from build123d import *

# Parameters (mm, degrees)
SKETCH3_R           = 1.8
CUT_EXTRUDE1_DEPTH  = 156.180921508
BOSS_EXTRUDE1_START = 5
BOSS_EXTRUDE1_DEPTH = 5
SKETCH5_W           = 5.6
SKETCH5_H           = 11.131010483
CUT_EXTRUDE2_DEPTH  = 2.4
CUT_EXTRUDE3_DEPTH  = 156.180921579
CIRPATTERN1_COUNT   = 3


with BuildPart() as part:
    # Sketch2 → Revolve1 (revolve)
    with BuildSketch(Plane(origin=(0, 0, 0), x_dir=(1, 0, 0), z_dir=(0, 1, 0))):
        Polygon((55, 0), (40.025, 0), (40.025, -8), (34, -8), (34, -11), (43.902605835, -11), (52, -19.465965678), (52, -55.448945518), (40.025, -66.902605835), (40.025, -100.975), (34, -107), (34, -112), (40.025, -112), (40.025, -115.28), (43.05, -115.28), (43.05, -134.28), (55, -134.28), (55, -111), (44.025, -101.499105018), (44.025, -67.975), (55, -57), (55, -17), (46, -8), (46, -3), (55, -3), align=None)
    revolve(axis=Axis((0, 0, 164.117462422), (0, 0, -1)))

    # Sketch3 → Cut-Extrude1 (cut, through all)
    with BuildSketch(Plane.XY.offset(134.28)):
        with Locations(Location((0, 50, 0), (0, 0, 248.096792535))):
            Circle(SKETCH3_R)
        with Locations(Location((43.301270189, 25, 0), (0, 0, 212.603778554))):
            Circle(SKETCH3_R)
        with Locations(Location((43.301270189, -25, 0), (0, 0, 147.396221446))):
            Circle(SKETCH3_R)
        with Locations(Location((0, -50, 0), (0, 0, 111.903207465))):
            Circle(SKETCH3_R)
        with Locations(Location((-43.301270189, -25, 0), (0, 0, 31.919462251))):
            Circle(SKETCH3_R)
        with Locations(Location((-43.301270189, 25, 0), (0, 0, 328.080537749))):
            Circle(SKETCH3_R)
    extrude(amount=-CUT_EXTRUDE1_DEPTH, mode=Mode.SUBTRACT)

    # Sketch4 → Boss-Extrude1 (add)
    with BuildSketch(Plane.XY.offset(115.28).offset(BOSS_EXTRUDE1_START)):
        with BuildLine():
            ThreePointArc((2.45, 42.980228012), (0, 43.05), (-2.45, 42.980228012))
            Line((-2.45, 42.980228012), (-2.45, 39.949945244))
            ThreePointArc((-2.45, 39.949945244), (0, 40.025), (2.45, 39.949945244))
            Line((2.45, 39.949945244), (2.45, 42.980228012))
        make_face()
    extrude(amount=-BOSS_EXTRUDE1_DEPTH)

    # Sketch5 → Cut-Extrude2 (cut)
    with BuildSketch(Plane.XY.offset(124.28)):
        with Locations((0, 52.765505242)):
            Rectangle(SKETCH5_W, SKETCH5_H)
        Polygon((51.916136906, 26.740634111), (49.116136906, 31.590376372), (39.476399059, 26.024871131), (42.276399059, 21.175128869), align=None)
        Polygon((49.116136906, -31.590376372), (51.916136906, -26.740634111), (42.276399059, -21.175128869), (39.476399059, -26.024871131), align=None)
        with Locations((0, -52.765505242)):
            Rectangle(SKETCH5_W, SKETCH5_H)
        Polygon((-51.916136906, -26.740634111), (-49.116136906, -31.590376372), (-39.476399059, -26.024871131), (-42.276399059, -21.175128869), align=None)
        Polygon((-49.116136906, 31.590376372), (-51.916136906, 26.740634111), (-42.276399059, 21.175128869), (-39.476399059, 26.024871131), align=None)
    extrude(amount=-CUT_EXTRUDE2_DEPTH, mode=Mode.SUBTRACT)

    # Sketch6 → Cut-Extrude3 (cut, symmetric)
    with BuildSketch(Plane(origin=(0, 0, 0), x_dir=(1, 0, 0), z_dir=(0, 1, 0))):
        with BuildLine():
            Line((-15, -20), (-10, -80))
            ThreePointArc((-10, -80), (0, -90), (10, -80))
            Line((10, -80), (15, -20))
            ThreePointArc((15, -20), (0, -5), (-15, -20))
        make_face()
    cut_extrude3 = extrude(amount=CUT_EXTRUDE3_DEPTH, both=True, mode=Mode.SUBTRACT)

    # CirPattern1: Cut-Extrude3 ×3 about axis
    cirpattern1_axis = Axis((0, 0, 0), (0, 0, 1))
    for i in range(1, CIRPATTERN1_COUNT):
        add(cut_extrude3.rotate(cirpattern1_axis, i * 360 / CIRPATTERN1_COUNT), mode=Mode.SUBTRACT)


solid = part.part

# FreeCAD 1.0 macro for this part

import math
import FreeCAD as App
import Part
import Sketcher
from FreeCAD import Vector
Q = App.Units.Quantity


def add_polygon(sketch, points):
    """Adds a closed chain of lines whose ends are joined by coincident constraints."""
    first, n = sketch.GeometryCount, len(points)
    for a, b in zip(points, points[1:] + points[:1]):
        sketch.addGeometry(Part.LineSegment(App.Vector(*a, 0), App.Vector(*b, 0)), False)
    for i in range(n):
        sketch.addConstraint(Sketcher.Constraint("Coincident", first + i, 2, first + (i + 1) % n, 1))

doc = App.newDocument("Part")
body = doc.addObject("PartDesign::Body", "Body")

sketch1 = body.newObject("Sketcher::SketchObject", "Sketch")
sketch1.AttachmentSupport = (doc.getObject("XZ_Plane"), [""])
sketch1.MapMode = "FlatFace"
add_polygon(sketch1, [(55, 0), (40.025, 0), (40.025, 8), (34, 8), (34, 11), (43.902606, 11), (52, 19.465966), (52, 55.448946), (40.025, 66.902606), (40.025, 100.975), (34, 107), (34, 112), (40.025, 112), (40.025, 115.28), (43.05, 115.28), (43.05, 134.28), (55, 134.28), (55, 111), (44.025, 101.499105), (44.025, 67.975), (55, 57), (55, 17), (46, 8), (46, 3), (55, 3)])
sketch1.addConstraint([
    Sketcher.Constraint("Horizontal", 0),
    Sketcher.Constraint("Vertical", 1),
    Sketcher.Constraint("Horizontal", 2),
    Sketcher.Constraint("Vertical", 3),
    Sketcher.Constraint("Horizontal", 4),
    Sketcher.Constraint("Vertical", 6),
    Sketcher.Constraint("Vertical", 8),
    Sketcher.Constraint("Vertical", 10),
    Sketcher.Constraint("Horizontal", 11),
    Sketcher.Constraint("Vertical", 12),
    Sketcher.Constraint("Horizontal", 13),
    Sketcher.Constraint("Vertical", 14),
    Sketcher.Constraint("Horizontal", 15),
    Sketcher.Constraint("Vertical", 16),
    Sketcher.Constraint("Vertical", 18),
    Sketcher.Constraint("Vertical", 20),
    Sketcher.Constraint("Vertical", 22),
    Sketcher.Constraint("Horizontal", 23),
    Sketcher.Constraint("Vertical", 24),
    Sketcher.Constraint("PointOnObject", 0, 2, -1),
    Sketcher.Constraint("Perpendicular", 5, 7),
    Sketcher.Constraint("Parallel", 9, 19),
    Sketcher.Constraint("Perpendicular", 19, 21),
    Sketcher.Constraint("Horizontal", 2, 2, 21, 2),
    Sketcher.Constraint("Vertical", 1, 2, 7, 2),
    Sketcher.Constraint("Vertical", 3, 2, 9, 2),
    Sketcher.Constraint("Vertical", 8, 2, 11, 2),
    Sketcher.Constraint("Vertical", 16, 2, 19, 2),
    Sketcher.Constraint("Vertical", 20, 2, 23, 2),
    Sketcher.Constraint("Equal", 10, 22),
    Sketcher.Constraint("Equal", 3, 24),
    Sketcher.Constraint("DistanceX", 23, 1, 23, 2, 9.0),
    Sketcher.Constraint("DistanceY", 1, 1, 1, 2, 8.0),
    Sketcher.Constraint("DistanceY", 3, 1, 3, 2, 3.0),
    Sketcher.Constraint("DistanceY", 14, 1, 14, 2, 19.0),
    Sketcher.Constraint("DistanceY", 20, 2, 20, 1, 40.0),
    Sketcher.Constraint("Angle", 9, Q("135 deg")),
    Sketcher.Constraint("DistanceX", -1, 1, 2, 2, 34.0),
    Sketcher.Constraint("DistanceX", -1, 1, 5, 2, 52.0),
    Sketcher.Constraint("DistanceY", -1, 1, 9, 2, 107.0),
    Sketcher.Constraint("DistanceX", -1, 1, 15, 2, 55.0),
    Sketcher.Constraint("DistanceY", -1, 1, 16, 2, 111.0),
    Sketcher.Constraint("DistanceX", 8, 2, 17, 2, 4.0),
    Sketcher.Constraint("DistanceX", 15, 1, 15, 2, 11.95),
    Sketcher.Constraint("DistanceY", 12, 1, 12, 2, 3.28),
    Sketcher.Constraint("DistanceX", 0, 2, 0, 1, 14.975),
    Sketcher.Constraint("DistanceY", 6, 1, 6, 2, 35.98298),
    Sketcher.Constraint("DistanceX", 4, 1, 4, 2, 9.902606),
    Sketcher.Constraint("DistanceY", 8, 1, 8, 2, 34.072394),
    Sketcher.Constraint("DistanceY", 18, 2, 18, 1, 33.524105),
])
revolution = body.newObject("PartDesign::Revolution", "Revolution")
revolution.Profile = sketch1
revolution.ReferenceAxis = (sketch1, ["V_Axis"])
revolution.Angle = 360

sketch2 = body.newObject("Sketcher::SketchObject", "Sketch001")
sketch2.AttachmentSupport = (doc.getObject("XY_Plane"), [""])
sketch2.MapMode = "FlatFace"
sketch2.AttachmentOffset = App.Placement(Vector(0, 0, 134.28), App.Rotation())
sketch2.addGeometry([
    Part.Circle(Vector(0, 50, 0), Vector(0, 0, 1), 1.8),
    Part.Circle(Vector(43.30127, 25, 0), Vector(0, 0, 1), 1.8),
    Part.Circle(Vector(43.30127, -25, 0), Vector(0, 0, 1), 1.8),
    Part.Circle(Vector(0, -50, 0), Vector(0, 0, 1), 1.8),
    Part.Circle(Vector(-43.30127, -25, 0), Vector(0, 0, 1), 1.8),
    Part.Circle(Vector(-43.30127, 25, 0), Vector(0, 0, 1), 1.8),
], False)
sketch2.addConstraint([
    Sketcher.Constraint("Equal", 0, 1),
    Sketcher.Constraint("Equal", 1, 2),
    Sketcher.Constraint("Equal", 2, 3),
    Sketcher.Constraint("Equal", 3, 4),
    Sketcher.Constraint("Equal", 4, 5),
    Sketcher.Constraint("Symmetric", 0, 3, 3, 3, -1, 1),
    Sketcher.Constraint("Symmetric", 1, 3, 4, 3, -1, 1),
    Sketcher.Constraint("Symmetric", 2, 3, 5, 3, -1, 1),
    Sketcher.Constraint("Symmetric", 2, 3, 4, 3, -2),
    Sketcher.Constraint("PointOnObject", 0, 3, -2),
    Sketcher.Constraint("Diameter", 0, 3.6),
    Sketcher.Constraint("DistanceY", -1, 1, 0, 3, 50.0),
    Sketcher.Constraint("DistanceY", -1, 1, 1, 3, 25.0),
    Sketcher.Constraint("DistanceX", -1, 1, 1, 3, 43.30127),
])
pocket1 = body.newObject("PartDesign::Pocket", "Pocket")
pocket1.Profile = sketch2
pocket1.Type = "ThroughAll"

sketch3 = body.newObject("Sketcher::SketchObject", "Sketch002")
sketch3.AttachmentSupport = (doc.getObject("XY_Plane"), [""])
sketch3.MapMode = "FlatFace"
sketch3.AttachmentOffset = App.Placement(Vector(0, 0, 120.28), App.Rotation())
sketch3.addGeometry([
    Part.ArcOfCircle(Part.Circle(Vector(0, 0, 0), Vector(0, 0, 1), 43.05), math.radians(86.737502), math.radians(93.262498)),
    Part.LineSegment(Vector(-2.45, 42.980228, 0), Vector(-2.45, 39.949945, 0)),
    Part.ArcOfCircle(Part.Circle(Vector(0, 0, 0), Vector(0, 0, 1), 40.025), math.radians(86.490632), math.radians(93.509368)),
    Part.LineSegment(Vector(2.45, 39.949945, 0), Vector(2.45, 42.980228, 0)),
], False)
sketch3.addConstraint([
    Sketcher.Constraint("Coincident", 0, 2, 1, 1),
    Sketcher.Constraint("Coincident", 1, 2, 2, 2),
    Sketcher.Constraint("Coincident", 2, 1, 3, 1),
    Sketcher.Constraint("Coincident", 3, 2, 0, 1),
    Sketcher.Constraint("Vertical", 1),
    Sketcher.Constraint("Vertical", 3),
    Sketcher.Constraint("Coincident", 0, 3, -1, 1),
    Sketcher.Constraint("Coincident", 2, 3, -1, 1),
    Sketcher.Constraint("Horizontal", 1, 2, 2, 1),
    Sketcher.Constraint("Radius", 0, 43.05),
    Sketcher.Constraint("Radius", 2, 40.025),
    Sketcher.Constraint("DistanceX", 1, 2, 2, 1, 4.9),
])
pad1 = body.newObject("PartDesign::Pad", "Pad")
pad1.Profile = sketch3
pad1.Length = 5
pad1.Reversed = True

sketch4 = body.newObject("Sketcher::SketchObject", "Sketch003")
sketch4.AttachmentSupport = (doc.getObject("XY_Plane"), [""])
sketch4.MapMode = "FlatFace"
sketch4.AttachmentOffset = App.Placement(Vector(0, 0, 124.28), App.Rotation())
add_polygon(sketch4, [(-2.8, 58.33101), (-2.8, 47.2), (2.8, 47.2), (2.8, 58.33101)])
add_polygon(sketch4, [(51.916137, 26.740634), (49.116137, 31.590376), (39.476399, 26.024871), (42.276399, 21.175129)])
add_polygon(sketch4, [(49.116137, -31.590376), (51.916137, -26.740634), (42.276399, -21.175129), (39.476399, -26.024871)])
add_polygon(sketch4, [(-2.8, -47.2), (-2.8, -58.33101), (2.8, -58.33101), (2.8, -47.2)])
add_polygon(sketch4, [(-51.916137, -26.740634), (-49.116137, -31.590376), (-39.476399, -26.024871), (-42.276399, -21.175129)])
add_polygon(sketch4, [(-49.116137, 31.590376), (-51.916137, 26.740634), (-42.276399, 21.175129), (-39.476399, 26.024871)])
sketch4.addConstraint([
    Sketcher.Constraint("Vertical", 0),
    Sketcher.Constraint("Horizontal", 1),
    Sketcher.Constraint("Vertical", 2),
    Sketcher.Constraint("Horizontal", 3),
    Sketcher.Constraint("Vertical", 12),
    Sketcher.Constraint("Horizontal", 13),
    Sketcher.Constraint("Vertical", 14),
    Sketcher.Constraint("Horizontal", 15),
    Sketcher.Constraint("Symmetric", 2, 2, 12, 2, -1, 1),
    Sketcher.Constraint("Symmetric", 0, 2, 14, 2, -1, 1),
    Sketcher.Constraint("Symmetric", 4, 2, 16, 2, -1, 1),
    Sketcher.Constraint("Symmetric", 5, 2, 17, 2, -1, 1),
    Sketcher.Constraint("Symmetric", 6, 2, 18, 2, -1, 1),
    Sketcher.Constraint("Symmetric", 7, 2, 19, 2, -1, 1),
    Sketcher.Constraint("Symmetric", 8, 2, 20, 2, -1, 1),
    Sketcher.Constraint("Symmetric", 9, 2, 21, 2, -1, 1),
    Sketcher.Constraint("Symmetric", 10, 2, 22, 2, -1, 1),
    Sketcher.Constraint("Symmetric", 11, 2, 23, 2, -1, 1),
    Sketcher.Constraint("Symmetric", 11, 2, 16, 2, -2),
    Sketcher.Constraint("Symmetric", 10, 2, 17, 2, -2),
    Sketcher.Constraint("Symmetric", 9, 2, 18, 2, -2),
    Sketcher.Constraint("Symmetric", 8, 2, 19, 2, -2),
    Sketcher.Constraint("Perpendicular", 4, 5),
    Sketcher.Constraint("Perpendicular", 5, 6),
    Sketcher.Constraint("Perpendicular", 6, 7),
    Sketcher.Constraint("Vertical", 3, 2, 12, 2),
    Sketcher.Constraint("Angle", 4, Q("120 deg")),
    Sketcher.Constraint("DistanceX", 1, 1, 1, 2, 5.6),
    Sketcher.Constraint("Distance", 4, 5.6),
    Sketcher.Constraint("DistanceY", -1, 1, 0, 2, 47.2),
    Sketcher.Constraint("DistanceY", 9, 2, 5, 2, 47.2),
    Sketcher.Constraint("DistanceY", 0, 2, 0, 1, 11.13101),
    Sketcher.Constraint("DistanceX", -1, 1, 5, 2, 39.476399),
    Sketcher.Constraint("Distance", 5, 11.13101),
])
pocket2 = body.newObject("PartDesign::Pocket", "Pocket001")
pocket2.Profile = sketch4
pocket2.Length = 2.4

sketch5 = body.newObject("Sketcher::SketchObject", "Sketch004")
sketch5.AttachmentSupport = (doc.getObject("XZ_Plane"), [""])
sketch5.MapMode = "FlatFace"
sketch5.addGeometry([
    Part.LineSegment(Vector(-15, 20, 0), Vector(-10, 80, 0)),
    Part.ArcOfCircle(Part.Circle(Vector(0, 80, 0), Vector(0, 0, 1), 10), math.radians(0), math.radians(180)),
    Part.LineSegment(Vector(10, 80, 0), Vector(15, 20, 0)),
    Part.ArcOfCircle(Part.Circle(Vector(0, 20, 0), Vector(0, 0, 1), 15), math.radians(180), math.radians(360)),
], False)
sketch5.addConstraint([
    Sketcher.Constraint("Coincident", 0, 2, 1, 2),
    Sketcher.Constraint("Coincident", 1, 1, 2, 1),
    Sketcher.Constraint("Coincident", 2, 2, 3, 2),
    Sketcher.Constraint("Coincident", 3, 1, 0, 1),
    Sketcher.Constraint("Symmetric", 0, 2, 1, 1, -2),
    Sketcher.Constraint("Symmetric", 2, 2, 3, 1, -2),
    Sketcher.Constraint("Horizontal", 1, 3, 0, 2),
    Sketcher.Constraint("Horizontal", 3, 3, 2, 2),
    Sketcher.Constraint("Radius", 1, 10.0),
    Sketcher.Constraint("Radius", 3, 15.0),
    Sketcher.Constraint("DistanceY", -1, 1, 1, 3, 80.0),
    Sketcher.Constraint("DistanceY", -1, 1, 3, 3, 20.0),
])
pocket3 = body.newObject("PartDesign::Pocket", "Pocket002")
pocket3.Profile = sketch5
pocket3.Length = 312.361843
pocket3.Midplane = True
doc.recompute()

polarpattern = body.newObject("PartDesign::PolarPattern", "PolarPattern")
polarpattern.Originals = [pocket3]
polarpattern.Axis = (doc.getObject("Z_Axis"), [""])
polarpattern.Angle = 360
polarpattern.Occurrences = 3
body.Tip = polarpattern

doc.recompute()
